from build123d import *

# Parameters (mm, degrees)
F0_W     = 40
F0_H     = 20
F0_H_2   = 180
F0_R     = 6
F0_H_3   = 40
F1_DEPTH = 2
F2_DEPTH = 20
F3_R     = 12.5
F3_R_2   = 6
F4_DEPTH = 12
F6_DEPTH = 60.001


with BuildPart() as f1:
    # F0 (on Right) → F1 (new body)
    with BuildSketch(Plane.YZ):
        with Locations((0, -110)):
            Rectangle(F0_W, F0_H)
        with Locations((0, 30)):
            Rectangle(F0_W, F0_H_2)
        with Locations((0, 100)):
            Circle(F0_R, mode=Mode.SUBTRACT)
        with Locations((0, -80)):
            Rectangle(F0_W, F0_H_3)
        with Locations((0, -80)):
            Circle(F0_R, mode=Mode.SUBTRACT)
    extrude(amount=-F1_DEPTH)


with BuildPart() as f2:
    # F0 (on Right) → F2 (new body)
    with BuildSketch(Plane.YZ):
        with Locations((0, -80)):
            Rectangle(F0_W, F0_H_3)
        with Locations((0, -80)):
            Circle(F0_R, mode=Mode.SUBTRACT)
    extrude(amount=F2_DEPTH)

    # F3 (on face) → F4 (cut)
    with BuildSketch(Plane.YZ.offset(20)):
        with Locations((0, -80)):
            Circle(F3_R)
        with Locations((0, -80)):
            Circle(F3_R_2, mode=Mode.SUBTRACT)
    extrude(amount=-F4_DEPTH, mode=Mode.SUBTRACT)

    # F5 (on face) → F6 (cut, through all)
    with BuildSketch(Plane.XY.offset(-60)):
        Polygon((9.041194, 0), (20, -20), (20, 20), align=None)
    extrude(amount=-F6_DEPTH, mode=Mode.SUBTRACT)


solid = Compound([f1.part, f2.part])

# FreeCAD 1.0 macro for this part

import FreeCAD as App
import Part
import Sketcher


def add_polygon(sketch, points):
    """Adds a closed chain of lines whose ends are joined by coincident constraints."""
    first, n = sketch.GeometryCount, len(points)
    for a, b in zip(points, points[1:] + points[:1]):
        sketch.addGeometry(Part.LineSegment(App.Vector(*a, 0), App.Vector(*b, 0)), False)
    for i in range(n):
        sketch.addConstraint(Sketcher.Constraint("Coincident", first + i, 2, first + (i + 1) % n, 1))

doc = App.newDocument("Part")
body = doc.addObject("PartDesign::Body", "Body")

# Sketch on YZ plane
sketch1 = doc.addObject("Sketcher::SketchObject", "Sketch")
body.addObject(sketch1)
sketch1.AttachmentSupport = (doc.YZ_Plane, [""])
sketch1.MapMode = "FlatFace"
add_polygon(sketch1, [(-20, -120), (20, -120), (20, 120), (-20, 120)])  # lines 0-3
sketch1.addGeometry(Part.Circle(App.Vector(0, -80, 0), App.Vector(0, 0, 1), 6), False)  # 4
sketch1.addGeometry(Part.Circle(App.Vector(0, 100, 0), App.Vector(0, 0, 1), 6), False)  # 5
sketch1.addConstraint(Sketcher.Constraint("Horizontal", 0))
sketch1.addConstraint(Sketcher.Constraint("Vertical", 1))
sketch1.addConstraint(Sketcher.Constraint("Horizontal", 2))
sketch1.addConstraint(Sketcher.Constraint("Vertical", 3))
sketch1.addConstraint(Sketcher.Constraint("Equal", 4, 5))
sketch1.addConstraint(Sketcher.Constraint("Symmetric", 0, 2, 2, 2, -1, 1))
sketch1.addConstraint(Sketcher.Constraint("PointOnObject", 4, 3, -2))
sketch1.addConstraint(Sketcher.Constraint("PointOnObject", 5, 3, -2))
sketch1.addConstraint(Sketcher.Constraint("Diameter", 4, 12.0))
sketch1.addConstraint(Sketcher.Constraint("DistanceX", 0, 1, 0, 2, 40.0))
sketch1.addConstraint(Sketcher.Constraint("DistanceY", 1, 1, 1, 2, 240.0))
sketch1.addConstraint(Sketcher.Constraint("DistanceY", 4, 3, -1, 1, 80.0))
sketch1.addConstraint(Sketcher.Constraint("DistanceY", -1, 1, 5, 3, 100.0))
pad1 = doc.addObject("PartDesign::Pad", "Pad")
body.addObject(pad1)
pad1.Profile = sketch1
pad1.Length = 2
pad1.Reversed = True
body2 = doc.addObject("PartDesign::Body", "Body001")

# Sketch on YZ plane
sketch2 = doc.addObject("Sketcher::SketchObject", "Sketch001")
body2.addObject(sketch2)
sketch2.AttachmentSupport = (doc.getObject("YZ_Plane001"), [""])
sketch2.MapMode = "FlatFace"
add_polygon(sketch2, [(-20, -60), (-20, -100), (20, -100), (20, -60)])  # lines 0-3
sketch2.addGeometry(Part.Circle(App.Vector(0, -80, 0), App.Vector(0, 0, 1), 6), False)  # 4
sketch2.addConstraint(Sketcher.Constraint("Vertical", 0))
sketch2.addConstraint(Sketcher.Constraint("Horizontal", 1))
sketch2.addConstraint(Sketcher.Constraint("Vertical", 2))
sketch2.addConstraint(Sketcher.Constraint("Horizontal", 3))
sketch2.addConstraint(Sketcher.Constraint("PointOnObject", 4, 3, -2))
sketch2.addConstraint(Sketcher.Constraint("Equal", 3, 0))
sketch2.addConstraint(Sketcher.Constraint("Diameter", 4, 12.0))
sketch2.addConstraint(Sketcher.Constraint("DistanceX", 1, 1, 1, 2, 40.0))
sketch2.addConstraint(Sketcher.Constraint("DistanceY", 4, 3, -1, 1, 80.0))
sketch2.addConstraint(Sketcher.Constraint("DistanceX", 0, 2, -1, 1, 20.0))
sketch2.addConstraint(Sketcher.Constraint("DistanceY", 0, 2, -1, 1, 100.0))
pad2 = doc.addObject("PartDesign::Pad", "Pad001")
body2.addObject(pad2)
pad2.Profile = sketch2
pad2.Length = 20

# Sketch on YZ plane
sketch3 = doc.addObject("Sketcher::SketchObject", "Sketch002")
body2.addObject(sketch3)
sketch3.AttachmentSupport = (doc.getObject("YZ_Plane001"), [""])
sketch3.MapMode = "FlatFace"
sketch3.AttachmentOffset = App.Placement(App.Vector(0, 0, 20), App.Rotation())
sketch3.addGeometry(Part.Circle(App.Vector(0, -80, 0), App.Vector(0, 0, 1), 12), False)
sketch3.addGeometry(Part.Circle(App.Vector(0, -80, 0), App.Vector(0, 0, 1), 6), False)
sketch3.addConstraint(Sketcher.Constraint("Coincident", 1, 3, 0, 3))
sketch3.addConstraint(Sketcher.Constraint("PointOnObject", 0, 3, -2))
sketch3.addConstraint(Sketcher.Constraint("Diameter", 0, 25.0))
sketch3.addConstraint(Sketcher.Constraint("Diameter", 1, 12.0))
sketch3.addConstraint(Sketcher.Constraint("DistanceY", 0, 3, -1, 1, 80.0))
pocket1 = doc.addObject("PartDesign::Pocket", "Pocket")
body2.addObject(pocket1)
pocket1.Profile = sketch3
pocket1.Length = 12

# Sketch on XY plane
sketch4 = doc.addObject("Sketcher::SketchObject", "Sketch003")
body2.addObject(sketch4)
sketch4.AttachmentSupport = (doc.getObject("XY_Plane001"), [""])
sketch4.MapMode = "FlatFace"
sketch4.AttachmentOffset = App.Placement(App.Vector(0, 0, -60), App.Rotation())
add_polygon(sketch4, [(9, 0), (20, -20), (20, 20)])  # lines 0-2
sketch4.addConstraint(Sketcher.Constraint("Vertical", 1))
sketch4.addConstraint(Sketcher.Constraint("PointOnObject", 2, 2, -1))
sketch4.addConstraint(Sketcher.Constraint("Equal", 0, 2))
sketch4.addConstraint(Sketcher.Constraint("DistanceY", 1, 1, 1, 2, 40.0))
sketch4.addConstraint(Sketcher.Constraint("DistanceX", -1, 1, 0, 2, 20.0))
sketch4.addConstraint(Sketcher.Constraint("Distance", 0, 22.805601))
pocket2 = doc.addObject("PartDesign::Pocket", "Pocket001")
body2.addObject(pocket2)
pocket2.Profile = sketch4
pocket2.Type = "ThroughAll"

doc.recompute()
